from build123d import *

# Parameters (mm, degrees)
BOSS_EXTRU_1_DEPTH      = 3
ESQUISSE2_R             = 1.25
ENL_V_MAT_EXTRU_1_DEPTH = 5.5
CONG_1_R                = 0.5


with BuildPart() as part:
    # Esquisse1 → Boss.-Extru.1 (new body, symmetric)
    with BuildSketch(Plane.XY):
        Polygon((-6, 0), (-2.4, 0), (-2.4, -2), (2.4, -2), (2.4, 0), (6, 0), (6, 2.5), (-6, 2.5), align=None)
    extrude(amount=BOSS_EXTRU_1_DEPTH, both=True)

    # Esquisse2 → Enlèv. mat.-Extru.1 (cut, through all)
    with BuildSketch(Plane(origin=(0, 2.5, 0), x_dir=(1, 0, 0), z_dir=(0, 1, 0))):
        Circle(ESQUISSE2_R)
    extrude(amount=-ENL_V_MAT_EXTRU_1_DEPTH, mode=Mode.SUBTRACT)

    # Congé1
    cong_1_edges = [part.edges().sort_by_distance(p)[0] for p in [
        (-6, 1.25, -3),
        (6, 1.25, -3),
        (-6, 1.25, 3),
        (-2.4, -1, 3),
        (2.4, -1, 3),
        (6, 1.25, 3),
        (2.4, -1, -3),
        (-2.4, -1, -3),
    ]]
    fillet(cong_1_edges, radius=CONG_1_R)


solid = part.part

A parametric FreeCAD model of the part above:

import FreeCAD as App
import Part
import Sketcher

V = App.Vector


def edges_at(feature, points):
    """Names of the edges that pass closest to the given points."""
    edges = feature.Shape.Edges
    near = lambda p: min(range(len(edges)), key=lambda i: edges[i].distToShape(Part.Vertex(*p))[0])
    return sorted({f"Edge{near(p) + 1}" for p in points})

doc = App.newDocument("Part")
params = doc.addObject("Spreadsheet::Sheet", "Params")
for row, (alias, value) in enumerate([
    ("sketch1_width", "12 mm"),
    ("sketch1_height", "2 mm"),
    ("sketch1_width2", "3.6 mm"),
    ("sketch1_height2", "2.5 mm"),
    ("pad1_length", "6 mm"),
    ("sketch2_diameter", "2.5 mm"),
    ("fillet_radius", "0.5 mm"),
], start=1):
    params.set(f"A{row}", alias)
    params.set(f"B{row}", "=" + value)
    params.setAlias(f"B{row}", alias)

body = doc.addObject("PartDesign::Body", "Body")

sketch1 = doc.addObject("Sketcher::SketchObject", "Sketch")
body.addObject(sketch1)
sketch1.AttachmentSupport = (doc.XY_Plane, [""])
sketch1.MapMode = "FlatFace"
sketch1.addGeometry(Part.LineSegment(V(-6, 0, 0), V(-2.4, 0, 0)), False)
sketch1.addGeometry(Part.LineSegment(V(-2.4, 0, 0), V(-2.4, -2, 0)), False)
sketch1.addGeometry(Part.LineSegment(V(-2.4, -2, 0), V(2.4, -2, 0)), False)
sketch1.addGeometry(Part.LineSegment(V(2.4, -2, 0), V(2.4, 0, 0)), False)
sketch1.addGeometry(Part.LineSegment(V(2.4, 0, 0), V(6, 0, 0)), False)
sketch1.addGeometry(Part.LineSegment(V(6, 0, 0), V(6, 2.5, 0)), False)
sketch1.addGeometry(Part.LineSegment(V(6, 2.5, 0), V(-6, 2.5, 0)), False)
sketch1.addGeometry(Part.LineSegment(V(-6, 2.5, 0), V(-6, 0, 0)), False)
sketch1.addConstraint(Sketcher.Constraint("Coincident", 0, 2, 1, 1))
sketch1.addConstraint(Sketcher.Constraint("Coincident", 1, 2, 2, 1))
sketch1.addConstraint(Sketcher.Constraint("Coincident", 2, 2, 3, 1))
sketch1.addConstraint(Sketcher.Constraint("Coincident", 3, 2, 4, 1))
sketch1.addConstraint(Sketcher.Constraint("Coincident", 4, 2, 5, 1))
sketch1.addConstraint(Sketcher.Constraint("Coincident", 5, 2, 6, 1))
sketch1.addConstraint(Sketcher.Constraint("Coincident", 6, 2, 7, 1))
sketch1.addConstraint(Sketcher.Constraint("Coincident", 7, 2, 0, 1))
sketch1.addConstraint(Sketcher.Constraint("Horizontal", 0))
sketch1.addConstraint(Sketcher.Constraint("Vertical", 1))
sketch1.addConstraint(Sketcher.Constraint("Horizontal", 2))
sketch1.addConstraint(Sketcher.Constraint("Vertical", 3))
sketch1.addConstraint(Sketcher.Constraint("Horizontal", 4))
sketch1.addConstraint(Sketcher.Constraint("Vertical", 5))
sketch1.addConstraint(Sketcher.Constraint("Horizontal", 6))
sketch1.addConstraint(Sketcher.Constraint("Vertical", 7))
sketch1.addConstraint(Sketcher.Constraint("Symmetric", 0, 2, 3, 2, -1, 1))
sketch1.addConstraint(Sketcher.Constraint("Symmetric", 4, 2, 7, 2, -2))
sketch1.addConstraint(Sketcher.Constraint("DistanceX", 6, 2, 6, 1, 12.0))
sketch1.addConstraint(Sketcher.Constraint("DistanceY", 1, 2, 1, 1, 2.0))
sketch1.addConstraint(Sketcher.Constraint("DistanceX", 0, 1, 0, 2, 3.6))
sketch1.addConstraint(Sketcher.Constraint("DistanceY", 5, 1, 5, 2, 2.5))
sketch1.setExpression("Constraints[18]", "Params.sketch1_width")
sketch1.setExpression("Constraints[19]", "Params.sketch1_height")
sketch1.setExpression("Constraints[20]", "Params.sketch1_width2")
sketch1.setExpression("Constraints[21]", "Params.sketch1_height2")
pad1 = doc.addObject("PartDesign::Pad", "Pad")
body.addObject(pad1)
pad1.Profile = sketch1
pad1.setExpression("Length", "Params.pad1_length")
pad1.Midplane = True

sketch2 = doc.addObject("Sketcher::SketchObject", "Sketch001")
body.addObject(sketch2)
sketch2.AttachmentSupport = (doc.XZ_Plane, [""])
sketch2.MapMode = "FlatFace"
sketch2.AttachmentOffset = App.Placement(V(0, 0, -2.5), App.Rotation())
sketch2.addGeometry(Part.Circle(V(0, 0, 0), V(0, 0, 1), 1.2), False)
sketch2.addConstraint(Sketcher.Constraint("Coincident", 0, 3, -1, 1))
sketch2.addConstraint(Sketcher.Constraint("Diameter", 0, 2.5))
sketch2.setExpression("Constraints[1]", "Params.sketch2_diameter")
pocket1 = doc.addObject("PartDesign::Pocket", "Pocket")
body.addObject(pocket1)
pocket1.Profile = sketch2
pocket1.Type = "ThroughAll"
pocket1.Reversed = True
doc.recompute()

fillet = doc.addObject("PartDesign::Fillet", "Fillet")
body.addObject(fillet)
fillet.Base = (pocket1, edges_at(pocket1, [
    (-6, 1.25, -3),
    (6, 1.25, -3),
    (-6, 1.25, 3),
    (-2.4, -1, 3),
    (2.4, -1, 3),
    (6, 1.25, 3),
    (2.4, -1, -3),
    (-2.4, -1, -3),
]))
fillet.setExpression("Radius", "Params.fillet_radius")

doc.recompute()
